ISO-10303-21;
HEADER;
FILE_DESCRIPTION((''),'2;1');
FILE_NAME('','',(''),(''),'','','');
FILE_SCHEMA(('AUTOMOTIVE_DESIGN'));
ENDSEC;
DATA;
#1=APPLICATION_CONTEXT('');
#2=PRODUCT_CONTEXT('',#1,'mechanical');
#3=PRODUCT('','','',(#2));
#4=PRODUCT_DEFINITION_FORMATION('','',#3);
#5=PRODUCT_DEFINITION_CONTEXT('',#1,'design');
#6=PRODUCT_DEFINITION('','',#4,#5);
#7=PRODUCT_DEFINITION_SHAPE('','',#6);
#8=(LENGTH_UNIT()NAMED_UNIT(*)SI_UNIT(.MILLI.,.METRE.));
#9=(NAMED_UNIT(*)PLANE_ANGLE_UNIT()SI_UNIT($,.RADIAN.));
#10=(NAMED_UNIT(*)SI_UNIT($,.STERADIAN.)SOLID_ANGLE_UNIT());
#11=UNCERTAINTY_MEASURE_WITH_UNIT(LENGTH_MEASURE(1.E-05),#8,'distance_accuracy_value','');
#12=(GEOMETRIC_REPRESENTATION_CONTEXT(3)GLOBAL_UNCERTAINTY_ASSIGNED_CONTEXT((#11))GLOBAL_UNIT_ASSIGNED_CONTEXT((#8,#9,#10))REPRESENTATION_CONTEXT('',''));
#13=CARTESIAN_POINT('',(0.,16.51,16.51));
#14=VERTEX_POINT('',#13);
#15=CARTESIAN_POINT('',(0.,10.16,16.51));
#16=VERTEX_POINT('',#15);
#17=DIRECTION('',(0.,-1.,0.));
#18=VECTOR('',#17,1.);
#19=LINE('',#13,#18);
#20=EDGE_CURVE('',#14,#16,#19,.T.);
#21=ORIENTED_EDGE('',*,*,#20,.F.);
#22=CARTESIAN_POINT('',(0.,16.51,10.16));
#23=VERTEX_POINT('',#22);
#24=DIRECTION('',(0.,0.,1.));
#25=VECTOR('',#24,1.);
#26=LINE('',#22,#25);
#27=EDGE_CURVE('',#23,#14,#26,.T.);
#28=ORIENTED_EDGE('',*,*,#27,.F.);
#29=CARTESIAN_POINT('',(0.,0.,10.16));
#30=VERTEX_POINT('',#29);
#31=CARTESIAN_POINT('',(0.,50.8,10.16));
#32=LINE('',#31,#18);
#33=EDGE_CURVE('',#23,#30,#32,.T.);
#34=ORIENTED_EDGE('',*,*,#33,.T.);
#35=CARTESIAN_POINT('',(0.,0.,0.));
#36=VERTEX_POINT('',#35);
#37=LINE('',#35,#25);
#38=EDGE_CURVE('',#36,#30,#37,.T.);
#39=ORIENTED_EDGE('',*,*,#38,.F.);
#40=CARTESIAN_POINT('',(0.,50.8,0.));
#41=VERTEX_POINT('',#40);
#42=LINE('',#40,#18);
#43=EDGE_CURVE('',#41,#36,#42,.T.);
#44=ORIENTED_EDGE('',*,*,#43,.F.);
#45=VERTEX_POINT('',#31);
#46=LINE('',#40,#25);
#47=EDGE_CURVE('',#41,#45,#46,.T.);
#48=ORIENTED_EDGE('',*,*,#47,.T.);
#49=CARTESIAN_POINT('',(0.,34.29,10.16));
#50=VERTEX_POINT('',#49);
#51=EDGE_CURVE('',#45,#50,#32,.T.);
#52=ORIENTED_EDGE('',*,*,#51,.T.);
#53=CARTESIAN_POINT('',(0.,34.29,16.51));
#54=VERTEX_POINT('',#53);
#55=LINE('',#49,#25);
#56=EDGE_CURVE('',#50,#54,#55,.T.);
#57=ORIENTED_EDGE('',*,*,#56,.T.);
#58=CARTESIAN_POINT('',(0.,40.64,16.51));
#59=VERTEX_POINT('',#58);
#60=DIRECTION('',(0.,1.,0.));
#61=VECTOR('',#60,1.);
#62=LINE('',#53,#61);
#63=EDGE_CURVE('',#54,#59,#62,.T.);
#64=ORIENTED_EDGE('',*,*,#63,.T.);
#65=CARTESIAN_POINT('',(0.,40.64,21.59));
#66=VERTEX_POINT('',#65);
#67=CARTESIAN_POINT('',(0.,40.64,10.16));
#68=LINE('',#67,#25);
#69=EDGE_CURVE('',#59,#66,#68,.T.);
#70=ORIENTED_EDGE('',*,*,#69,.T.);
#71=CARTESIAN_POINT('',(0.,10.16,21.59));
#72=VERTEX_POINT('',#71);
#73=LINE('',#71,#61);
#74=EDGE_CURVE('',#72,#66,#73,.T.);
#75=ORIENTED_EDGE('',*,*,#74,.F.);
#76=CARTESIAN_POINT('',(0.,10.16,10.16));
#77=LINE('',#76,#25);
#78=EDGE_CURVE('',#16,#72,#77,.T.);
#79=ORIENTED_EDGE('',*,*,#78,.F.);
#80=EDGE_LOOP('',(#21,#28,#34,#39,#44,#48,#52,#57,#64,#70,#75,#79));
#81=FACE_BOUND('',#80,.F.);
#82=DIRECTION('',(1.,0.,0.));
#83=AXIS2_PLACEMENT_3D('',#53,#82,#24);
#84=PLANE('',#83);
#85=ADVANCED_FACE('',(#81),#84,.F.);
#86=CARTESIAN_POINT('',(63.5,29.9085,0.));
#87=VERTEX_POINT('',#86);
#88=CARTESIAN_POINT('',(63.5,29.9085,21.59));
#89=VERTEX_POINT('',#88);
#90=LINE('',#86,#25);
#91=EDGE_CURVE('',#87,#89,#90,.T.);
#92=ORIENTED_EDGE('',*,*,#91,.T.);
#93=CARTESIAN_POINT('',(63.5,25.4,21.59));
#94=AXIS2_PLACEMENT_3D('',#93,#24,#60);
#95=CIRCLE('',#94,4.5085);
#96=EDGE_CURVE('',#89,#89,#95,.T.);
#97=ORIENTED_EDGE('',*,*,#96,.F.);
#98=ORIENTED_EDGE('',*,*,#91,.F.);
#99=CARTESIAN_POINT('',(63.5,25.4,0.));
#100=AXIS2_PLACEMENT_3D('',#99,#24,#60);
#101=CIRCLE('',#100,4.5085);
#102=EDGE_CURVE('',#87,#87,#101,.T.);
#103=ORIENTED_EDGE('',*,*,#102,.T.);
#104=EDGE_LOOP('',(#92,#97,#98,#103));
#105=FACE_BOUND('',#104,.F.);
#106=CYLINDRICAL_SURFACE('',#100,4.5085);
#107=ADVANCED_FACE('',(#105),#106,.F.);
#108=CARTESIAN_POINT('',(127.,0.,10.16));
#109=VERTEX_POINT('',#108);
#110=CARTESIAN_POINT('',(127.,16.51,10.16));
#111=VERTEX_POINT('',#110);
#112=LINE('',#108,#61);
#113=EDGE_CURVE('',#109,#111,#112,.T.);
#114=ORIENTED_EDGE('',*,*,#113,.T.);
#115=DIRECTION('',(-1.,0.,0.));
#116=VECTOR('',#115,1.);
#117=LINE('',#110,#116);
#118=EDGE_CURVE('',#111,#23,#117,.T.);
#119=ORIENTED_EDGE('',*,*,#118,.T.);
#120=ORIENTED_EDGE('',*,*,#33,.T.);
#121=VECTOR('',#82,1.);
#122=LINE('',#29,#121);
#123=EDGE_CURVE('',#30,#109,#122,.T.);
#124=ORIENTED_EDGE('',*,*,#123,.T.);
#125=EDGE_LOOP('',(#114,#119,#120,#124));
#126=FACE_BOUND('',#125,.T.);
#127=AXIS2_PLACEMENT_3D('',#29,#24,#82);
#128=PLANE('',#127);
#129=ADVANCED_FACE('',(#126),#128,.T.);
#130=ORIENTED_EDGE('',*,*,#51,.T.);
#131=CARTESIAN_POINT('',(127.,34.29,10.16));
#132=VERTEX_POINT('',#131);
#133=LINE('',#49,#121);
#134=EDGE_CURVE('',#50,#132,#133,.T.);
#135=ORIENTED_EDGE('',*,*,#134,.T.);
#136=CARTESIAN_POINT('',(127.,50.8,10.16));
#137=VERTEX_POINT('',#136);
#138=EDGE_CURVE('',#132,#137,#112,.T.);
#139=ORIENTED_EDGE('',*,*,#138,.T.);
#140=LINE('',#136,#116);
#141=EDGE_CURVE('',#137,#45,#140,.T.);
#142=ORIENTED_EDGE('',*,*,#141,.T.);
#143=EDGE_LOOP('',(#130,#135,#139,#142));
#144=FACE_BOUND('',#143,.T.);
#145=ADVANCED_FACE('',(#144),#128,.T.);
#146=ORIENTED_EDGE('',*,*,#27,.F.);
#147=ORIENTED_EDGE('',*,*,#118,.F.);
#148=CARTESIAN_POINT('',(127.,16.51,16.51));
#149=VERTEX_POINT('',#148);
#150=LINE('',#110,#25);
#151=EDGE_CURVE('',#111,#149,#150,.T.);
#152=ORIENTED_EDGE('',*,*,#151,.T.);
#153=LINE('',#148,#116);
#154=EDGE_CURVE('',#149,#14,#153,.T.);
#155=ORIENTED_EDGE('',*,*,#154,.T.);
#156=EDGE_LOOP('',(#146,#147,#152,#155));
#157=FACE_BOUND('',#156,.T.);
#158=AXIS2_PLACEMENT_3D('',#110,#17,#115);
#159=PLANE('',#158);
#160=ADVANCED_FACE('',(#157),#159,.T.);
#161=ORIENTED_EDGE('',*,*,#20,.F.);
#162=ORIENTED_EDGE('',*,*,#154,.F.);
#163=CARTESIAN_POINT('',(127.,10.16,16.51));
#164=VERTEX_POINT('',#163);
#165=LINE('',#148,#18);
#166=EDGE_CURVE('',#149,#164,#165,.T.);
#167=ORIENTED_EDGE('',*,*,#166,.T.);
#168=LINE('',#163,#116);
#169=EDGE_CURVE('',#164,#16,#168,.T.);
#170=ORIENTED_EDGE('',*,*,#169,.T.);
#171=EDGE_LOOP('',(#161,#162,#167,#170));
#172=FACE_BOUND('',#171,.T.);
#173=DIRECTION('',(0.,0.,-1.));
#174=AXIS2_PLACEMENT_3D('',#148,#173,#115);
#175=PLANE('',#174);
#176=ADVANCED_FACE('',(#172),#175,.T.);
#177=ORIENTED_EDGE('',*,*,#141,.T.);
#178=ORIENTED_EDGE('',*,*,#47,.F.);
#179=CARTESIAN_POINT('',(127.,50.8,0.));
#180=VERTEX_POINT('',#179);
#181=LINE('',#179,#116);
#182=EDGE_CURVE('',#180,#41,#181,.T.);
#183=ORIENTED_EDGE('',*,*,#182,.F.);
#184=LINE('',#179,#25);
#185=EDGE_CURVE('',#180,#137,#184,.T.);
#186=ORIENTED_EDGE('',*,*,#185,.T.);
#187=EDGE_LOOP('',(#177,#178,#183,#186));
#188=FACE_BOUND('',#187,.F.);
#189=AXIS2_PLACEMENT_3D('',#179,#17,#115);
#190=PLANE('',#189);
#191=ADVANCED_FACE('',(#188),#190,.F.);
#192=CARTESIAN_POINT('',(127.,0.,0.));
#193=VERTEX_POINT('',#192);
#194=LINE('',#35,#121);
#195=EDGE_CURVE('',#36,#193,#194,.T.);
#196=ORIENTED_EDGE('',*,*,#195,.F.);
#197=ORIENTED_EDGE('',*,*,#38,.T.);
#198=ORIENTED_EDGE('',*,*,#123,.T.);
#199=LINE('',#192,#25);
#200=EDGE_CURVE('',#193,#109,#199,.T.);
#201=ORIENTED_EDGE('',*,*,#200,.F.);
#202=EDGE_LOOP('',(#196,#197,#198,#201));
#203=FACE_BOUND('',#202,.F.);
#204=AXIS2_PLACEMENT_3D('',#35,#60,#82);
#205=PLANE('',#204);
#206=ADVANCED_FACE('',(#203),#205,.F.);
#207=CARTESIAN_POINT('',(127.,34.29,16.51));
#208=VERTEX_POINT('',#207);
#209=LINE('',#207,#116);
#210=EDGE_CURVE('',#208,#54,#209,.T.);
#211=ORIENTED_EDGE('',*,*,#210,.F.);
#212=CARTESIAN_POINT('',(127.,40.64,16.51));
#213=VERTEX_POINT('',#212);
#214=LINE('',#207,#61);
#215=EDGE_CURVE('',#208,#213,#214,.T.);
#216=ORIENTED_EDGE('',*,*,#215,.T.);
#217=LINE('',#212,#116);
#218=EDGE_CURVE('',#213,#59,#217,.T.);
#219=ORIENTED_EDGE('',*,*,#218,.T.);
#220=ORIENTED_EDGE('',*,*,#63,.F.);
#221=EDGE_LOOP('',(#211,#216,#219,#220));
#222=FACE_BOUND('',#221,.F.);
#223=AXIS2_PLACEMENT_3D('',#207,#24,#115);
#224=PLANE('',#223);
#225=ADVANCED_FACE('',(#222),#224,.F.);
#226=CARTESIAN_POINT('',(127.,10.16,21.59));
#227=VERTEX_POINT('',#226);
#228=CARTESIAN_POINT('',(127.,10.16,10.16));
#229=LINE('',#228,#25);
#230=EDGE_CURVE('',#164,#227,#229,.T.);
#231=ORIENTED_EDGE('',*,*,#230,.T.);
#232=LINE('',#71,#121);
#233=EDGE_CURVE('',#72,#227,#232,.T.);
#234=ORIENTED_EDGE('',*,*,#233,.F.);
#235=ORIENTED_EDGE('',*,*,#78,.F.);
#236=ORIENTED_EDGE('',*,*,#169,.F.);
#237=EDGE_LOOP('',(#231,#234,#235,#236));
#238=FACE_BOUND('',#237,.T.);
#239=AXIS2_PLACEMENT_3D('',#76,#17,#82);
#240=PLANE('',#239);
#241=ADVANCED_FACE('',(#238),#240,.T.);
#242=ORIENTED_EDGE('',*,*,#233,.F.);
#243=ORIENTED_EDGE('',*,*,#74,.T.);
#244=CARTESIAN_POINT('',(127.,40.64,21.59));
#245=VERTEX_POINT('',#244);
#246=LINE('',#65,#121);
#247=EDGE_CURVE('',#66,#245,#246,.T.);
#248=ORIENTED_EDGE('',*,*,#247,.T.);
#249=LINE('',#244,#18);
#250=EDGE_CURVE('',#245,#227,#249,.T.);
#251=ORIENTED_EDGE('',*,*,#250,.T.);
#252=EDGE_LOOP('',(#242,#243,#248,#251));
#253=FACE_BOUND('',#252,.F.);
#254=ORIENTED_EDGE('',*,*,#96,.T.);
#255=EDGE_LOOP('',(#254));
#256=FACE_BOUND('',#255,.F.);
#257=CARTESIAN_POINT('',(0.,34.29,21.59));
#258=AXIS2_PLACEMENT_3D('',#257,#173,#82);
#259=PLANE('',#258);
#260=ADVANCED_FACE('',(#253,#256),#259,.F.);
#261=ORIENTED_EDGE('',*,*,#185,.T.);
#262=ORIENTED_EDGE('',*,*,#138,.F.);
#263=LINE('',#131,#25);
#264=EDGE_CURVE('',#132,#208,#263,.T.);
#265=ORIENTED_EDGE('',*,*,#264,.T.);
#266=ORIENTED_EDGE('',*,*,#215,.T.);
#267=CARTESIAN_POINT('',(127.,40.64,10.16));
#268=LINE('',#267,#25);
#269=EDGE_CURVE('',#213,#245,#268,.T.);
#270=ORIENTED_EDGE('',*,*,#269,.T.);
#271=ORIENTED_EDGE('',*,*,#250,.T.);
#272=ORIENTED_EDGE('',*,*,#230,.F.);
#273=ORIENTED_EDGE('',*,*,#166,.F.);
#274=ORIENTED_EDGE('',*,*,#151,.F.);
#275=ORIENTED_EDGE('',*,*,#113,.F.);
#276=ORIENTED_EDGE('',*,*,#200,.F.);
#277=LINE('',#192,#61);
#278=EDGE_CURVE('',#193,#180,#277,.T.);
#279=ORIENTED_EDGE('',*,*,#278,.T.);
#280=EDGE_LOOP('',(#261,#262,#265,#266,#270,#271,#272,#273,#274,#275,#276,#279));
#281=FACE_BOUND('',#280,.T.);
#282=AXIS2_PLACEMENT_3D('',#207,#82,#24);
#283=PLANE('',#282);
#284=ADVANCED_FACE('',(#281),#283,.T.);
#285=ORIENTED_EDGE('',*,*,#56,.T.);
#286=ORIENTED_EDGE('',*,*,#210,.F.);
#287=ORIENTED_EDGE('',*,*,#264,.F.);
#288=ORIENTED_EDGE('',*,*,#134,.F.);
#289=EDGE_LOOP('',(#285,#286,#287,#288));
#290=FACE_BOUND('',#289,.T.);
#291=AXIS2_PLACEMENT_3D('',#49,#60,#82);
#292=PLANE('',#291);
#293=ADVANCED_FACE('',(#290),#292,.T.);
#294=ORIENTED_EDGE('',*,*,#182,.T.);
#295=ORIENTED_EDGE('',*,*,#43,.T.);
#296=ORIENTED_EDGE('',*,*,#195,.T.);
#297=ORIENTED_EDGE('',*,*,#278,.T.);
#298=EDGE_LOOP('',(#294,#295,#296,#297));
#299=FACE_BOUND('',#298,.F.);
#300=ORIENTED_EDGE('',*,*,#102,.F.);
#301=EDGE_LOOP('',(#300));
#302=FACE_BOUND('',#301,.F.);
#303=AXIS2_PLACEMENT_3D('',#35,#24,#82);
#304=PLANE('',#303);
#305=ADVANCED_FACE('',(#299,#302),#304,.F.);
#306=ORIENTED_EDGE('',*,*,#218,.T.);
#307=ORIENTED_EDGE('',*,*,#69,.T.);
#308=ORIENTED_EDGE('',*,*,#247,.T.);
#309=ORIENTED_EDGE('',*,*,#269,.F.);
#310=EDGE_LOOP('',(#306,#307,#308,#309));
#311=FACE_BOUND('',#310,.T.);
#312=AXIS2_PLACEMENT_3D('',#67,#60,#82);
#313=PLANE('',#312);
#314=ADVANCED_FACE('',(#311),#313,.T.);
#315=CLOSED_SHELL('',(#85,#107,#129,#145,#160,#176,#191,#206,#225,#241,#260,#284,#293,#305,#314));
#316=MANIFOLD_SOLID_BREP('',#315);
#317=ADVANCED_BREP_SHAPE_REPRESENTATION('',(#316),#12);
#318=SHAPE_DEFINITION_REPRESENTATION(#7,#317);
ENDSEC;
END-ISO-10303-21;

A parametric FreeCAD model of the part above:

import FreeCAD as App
import Part
import Sketcher
from FreeCAD import Vector
Q = App.Units.Quantity


def add_polygon(sketch, points):
    """Adds a closed chain of lines whose ends are joined by coincident constraints."""
    first, n = sketch.GeometryCount, len(points)
    for a, b in zip(points, points[1:] + points[:1]):
        sketch.addGeometry(Part.LineSegment(App.Vector(*a, 0), App.Vector(*b, 0)), False)
    for i in range(n):
        sketch.addConstraint(Sketcher.Constraint("Coincident", first + i, 2, first + (i + 1) % n, 1))

doc = App.newDocument("Part")
body = doc.addObject("PartDesign::Body", "Body")

sketch1 = doc.addObject("Sketcher::SketchObject", "Sketch")
body.addObject(sketch1)
sketch1.AttachmentSupport = (doc.XY_Plane, [""])
sketch1.MapMode = "FlatFace"
add_polygon(sketch1, [(0, 50.8), (0, 0), (127, 0), (127, 50.8)])
sketch1.addConstraint(Sketcher.Constraint("Vertical", 0))
sketch1.addConstraint(Sketcher.Constraint("Horizontal", 1))
sketch1.addConstraint(Sketcher.Constraint("Vertical", 2))
sketch1.addConstraint(Sketcher.Constraint("Horizontal", 3))
sketch1.addConstraint(Sketcher.Constraint("Coincident", 0, 2, -1, 1))
sketch1.addConstraint(Sketcher.Constraint("DistanceX", 1, 1, 1, 2, Q("5 in")))
sketch1.addConstraint(Sketcher.Constraint("DistanceY", 0, 2, 0, 1, Q("2 in")))
pad1 = doc.addObject("PartDesign::Pad", "Pad")
body.addObject(pad1)
pad1.Profile = sketch1
pad1.Length = Q("0.4 in")

sketch2 = doc.addObject("Sketcher::SketchObject", "Sketch001")
body.addObject(sketch2)
sketch2.AttachmentSupport = (doc.XY_Plane, [""])
sketch2.MapMode = "FlatFace"
sketch2.AttachmentOffset = App.Placement(Vector(0, 0, 0.4 * 25.4), App.Rotation())
add_polygon(sketch2, [(127, 34.29), (0, 34.29), (0, 16.51), (127, 16.51)])
sketch2.addConstraint(Sketcher.Constraint("Horizontal", 0))
sketch2.addConstraint(Sketcher.Constraint("Vertical", 1))
sketch2.addConstraint(Sketcher.Constraint("Horizontal", 2))
sketch2.addConstraint(Sketcher.Constraint("Vertical", 3))
sketch2.addConstraint(Sketcher.Constraint("PointOnObject", 0, 2, -2))
sketch2.addConstraint(Sketcher.Constraint("DistanceY", 1, 2, 1, 1, Q("0.7 in")))
sketch2.addConstraint(Sketcher.Constraint("DistanceX", 0, 2, 0, 1, Q("5 in")))
sketch2.addConstraint(Sketcher.Constraint("DistanceY", -1, 1, 1, 2, Q("0.65 in")))
pad2 = doc.addObject("PartDesign::Pad", "Pad001")
body.addObject(pad2)
pad2.Profile = sketch2
pad2.Length = Q("0.45 in")

sketch3 = doc.addObject("Sketcher::SketchObject", "Sketch002")
body.addObject(sketch3)
sketch3.AttachmentSupport = (doc.XZ_Plane, [""])
sketch3.MapMode = "FlatFace"
sketch3.AttachmentOffset = App.Placement(Vector(0, 0, -0.65 * 25.4), App.Rotation())
add_polygon(sketch3, [(0, 21.59), (0, 16.51), (127, 16.51), (127, 21.59)])
sketch3.addConstraint(Sketcher.Constraint("Vertical", 0))
sketch3.addConstraint(Sketcher.Constraint("Horizontal", 1))
sketch3.addConstraint(Sketcher.Constraint("Vertical", 2))
sketch3.addConstraint(Sketcher.Constraint("Horizontal", 3))
sketch3.addConstraint(Sketcher.Constraint("PointOnObject", 0, 2, -2))
sketch3.addConstraint(Sketcher.Constraint("DistanceY", 0, 2, 0, 1, Q("0.2 in")))
sketch3.addConstraint(Sketcher.Constraint("DistanceX", 1, 1, 1, 2, Q("5 in")))
sketch3.addConstraint(Sketcher.Constraint("DistanceY", -1, 1, 0, 2, Q("0.65 in")))
pad3 = doc.addObject("PartDesign::Pad", "Pad002")
body.addObject(pad3)
pad3.Profile = sketch3
pad3.Length = Q("0.25 in")

sketch4 = doc.addObject("Sketcher::SketchObject", "Sketch003")
body.addObject(sketch4)
sketch4.AttachmentSupport = (doc.XZ_Plane, [""])
sketch4.MapMode = "FlatFace"
sketch4.AttachmentOffset = App.Placement(Vector(0, 0, -1.35 * 25.4), App.Rotation())
add_polygon(sketch4, [(127, 16.51), (0, 16.51), (0, 21.59), (127, 21.59)])
sketch4.addConstraint(Sketcher.Constraint("Horizontal", 0))
sketch4.addConstraint(Sketcher.Constraint("Vertical", 1))
sketch4.addConstraint(Sketcher.Constraint("Horizontal", 2))
sketch4.addConstraint(Sketcher.Constraint("Vertical", 3))
sketch4.addConstraint(Sketcher.Constraint("PointOnObject", 0, 2, -2))
sketch4.addConstraint(Sketcher.Constraint("DistanceY", 1, 1, 1, 2, Q("0.2 in")))
sketch4.addConstraint(Sketcher.Constraint("DistanceX", 0, 2, 0, 1, Q("5 in")))
sketch4.addConstraint(Sketcher.Constraint("DistanceY", -1, 1, 0, 2, Q("0.65 in")))
pad4 = doc.addObject("PartDesign::Pad", "Pad003")
body.addObject(pad4)
pad4.Profile = sketch4
pad4.Length = Q("0.25 in")
pad4.Reversed = True

sketch5 = doc.addObject("Sketcher::SketchObject", "Sketch004")
body.addObject(sketch5)
sketch5.AttachmentSupport = (doc.XY_Plane, [""])
sketch5.MapMode = "FlatFace"
sketch5.addGeometry(Part.Circle(Vector(63.5, 25.4, 0), Vector(0, 0, 1), 4.5085), False)
sketch5.addConstraint(Sketcher.Constraint("Diameter", 0, Q("0.355 in")))
sketch5.addConstraint(Sketcher.Constraint("DistanceY", -1, 1, 0, 3, Q("1 in")))
sketch5.addConstraint(Sketcher.Constraint("DistanceX", -1, 1, 0, 3, Q("2.5 in")))
doc.recompute()
hole = doc.addObject("PartDesign::Hole", "Hole")
body.addObject(hole)
hole.Profile = sketch5
hole.ThreadType = "None"
hole.Diameter = Q("0.355 in")
hole.DepthType = "ThroughAll"
hole.Reversed = True

doc.recompute()
